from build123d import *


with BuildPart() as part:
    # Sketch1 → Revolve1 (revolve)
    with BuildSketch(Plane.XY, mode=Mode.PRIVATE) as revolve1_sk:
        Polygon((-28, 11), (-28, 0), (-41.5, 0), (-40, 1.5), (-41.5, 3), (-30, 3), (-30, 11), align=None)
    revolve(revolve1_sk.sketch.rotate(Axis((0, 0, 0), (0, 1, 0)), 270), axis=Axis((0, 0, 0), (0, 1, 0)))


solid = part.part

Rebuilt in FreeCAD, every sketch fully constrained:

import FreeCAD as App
import Part
import Sketcher
from FreeCAD import Vector
Q = App.Units.Quantity

doc = App.newDocument("Part")
body = doc.addObject("PartDesign::Body", "Body")

sketch1 = body.newObject("Sketcher::SketchObject", "Sketch")
sketch1.AttachmentSupport = (doc.getObject("XY_Plane"), [""])
sketch1.MapMode = "FlatFace"
sketch1.addGeometry([
    Part.LineSegment(Vector(-28, 0, 0), Vector(-28, 11, 0)),
    Part.LineSegment(Vector(-28, 11, 0), Vector(-30, 11, 0)),
    Part.LineSegment(Vector(-30, 11, 0), Vector(-30, 3, 0)),
    Part.LineSegment(Vector(-30, 3, 0), Vector(-41.5, 3, 0)),
    Part.LineSegment(Vector(-41.5, 3, 0), Vector(-40, 1.5, 0)),
    Part.LineSegment(Vector(-40, 1.5, 0), Vector(-41.5, 0, 0)),
    Part.LineSegment(Vector(-41.5, 0, 0), Vector(-28, 0, 0)),
], False)
sketch1.addConstraint([
    Sketcher.Constraint("Coincident", 0, 2, 1, 1),
    Sketcher.Constraint("Coincident", 1, 2, 2, 1),
    Sketcher.Constraint("Coincident", 2, 2, 3, 1),
    Sketcher.Constraint("Coincident", 3, 2, 4, 1),
    Sketcher.Constraint("Coincident", 4, 2, 5, 1),
    Sketcher.Constraint("Coincident", 5, 2, 6, 1),
    Sketcher.Constraint("Coincident", 6, 2, 0, 1),
    Sketcher.Constraint("Vertical", 0),
    Sketcher.Constraint("Horizontal", 1),
    Sketcher.Constraint("Vertical", 2),
    Sketcher.Constraint("Horizontal", 3),
    Sketcher.Constraint("Horizontal", 6),
    Sketcher.Constraint("PointOnObject", 5, 2, -1),
    Sketcher.Constraint("Perpendicular", 4, 5),
    Sketcher.Constraint("Vertical", 3, 2, 5, 2),
    Sketcher.Constraint("Equal", 4, 5),
    Sketcher.Constraint("DistanceX", 1, 2, 1, 1, Q("2 mm")),
    Sketcher.Constraint("DistanceY", 0, 1, 0, 2, Q("11 mm")),
    Sketcher.Constraint("DistanceY", 2, 2, 2, 1, Q("8 mm")),
    Sketcher.Constraint("DistanceX", 3, 2, 3, 1, Q("11.5 mm")),
    Sketcher.Constraint("DistanceX", 0, 2, -1, 1, Q("28 mm")),
])
revolution = body.newObject("PartDesign::Revolution", "Revolution")
revolution.Profile = sketch1
revolution.ReferenceAxis = (sketch1, ["V_Axis"])
revolution.Angle = 360

doc.recompute()
